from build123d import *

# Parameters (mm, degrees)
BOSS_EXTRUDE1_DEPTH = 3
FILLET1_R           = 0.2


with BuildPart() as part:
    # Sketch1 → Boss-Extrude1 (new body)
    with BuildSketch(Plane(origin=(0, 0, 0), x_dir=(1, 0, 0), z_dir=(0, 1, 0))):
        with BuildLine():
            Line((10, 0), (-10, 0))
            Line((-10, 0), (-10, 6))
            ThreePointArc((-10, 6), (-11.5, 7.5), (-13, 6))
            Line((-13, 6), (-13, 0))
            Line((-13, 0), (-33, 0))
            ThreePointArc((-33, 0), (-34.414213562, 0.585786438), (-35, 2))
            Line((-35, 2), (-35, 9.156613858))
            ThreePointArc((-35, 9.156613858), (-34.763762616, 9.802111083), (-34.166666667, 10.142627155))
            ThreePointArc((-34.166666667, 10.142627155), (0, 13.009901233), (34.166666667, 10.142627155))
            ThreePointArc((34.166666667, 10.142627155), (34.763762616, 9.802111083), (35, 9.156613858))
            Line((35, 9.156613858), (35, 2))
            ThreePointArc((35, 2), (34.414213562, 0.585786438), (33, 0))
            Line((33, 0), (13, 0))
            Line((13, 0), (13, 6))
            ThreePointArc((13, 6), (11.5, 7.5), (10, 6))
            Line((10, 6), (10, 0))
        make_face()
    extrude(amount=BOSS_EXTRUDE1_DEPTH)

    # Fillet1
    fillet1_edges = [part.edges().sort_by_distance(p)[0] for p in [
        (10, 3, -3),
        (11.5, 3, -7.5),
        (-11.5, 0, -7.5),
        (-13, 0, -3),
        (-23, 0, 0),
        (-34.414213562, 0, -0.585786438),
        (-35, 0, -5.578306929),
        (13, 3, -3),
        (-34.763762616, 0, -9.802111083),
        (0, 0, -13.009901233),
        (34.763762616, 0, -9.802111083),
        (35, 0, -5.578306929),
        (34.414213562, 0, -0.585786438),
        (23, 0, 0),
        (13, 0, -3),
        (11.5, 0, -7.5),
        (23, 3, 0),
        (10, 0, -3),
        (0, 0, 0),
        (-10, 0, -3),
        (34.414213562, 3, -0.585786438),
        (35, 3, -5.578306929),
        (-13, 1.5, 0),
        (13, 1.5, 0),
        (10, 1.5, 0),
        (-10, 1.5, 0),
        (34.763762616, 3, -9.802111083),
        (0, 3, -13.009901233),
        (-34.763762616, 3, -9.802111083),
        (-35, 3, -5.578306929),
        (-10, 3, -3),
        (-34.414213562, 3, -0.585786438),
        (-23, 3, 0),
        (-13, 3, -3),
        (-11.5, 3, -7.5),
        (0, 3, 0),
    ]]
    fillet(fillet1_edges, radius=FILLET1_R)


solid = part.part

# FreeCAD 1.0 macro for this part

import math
import FreeCAD as App
import Part
import Sketcher
from FreeCAD import Vector

doc = App.newDocument("Part")
body = doc.addObject("PartDesign::Body", "Body")

# Sketch on XZ plane
sketch1 = body.newObject("Sketcher::SketchObject", "Sketch")
sketch1.AttachmentSupport = (doc.getObject("XZ_Plane"), [""])
sketch1.MapMode = "FlatFace"
sketch1.addGeometry(Part.LineSegment(Vector(-10, 0, 0), Vector(10, 0, 0)), False)
sketch1.addGeometry(Part.LineSegment(Vector(10, 0, 0), Vector(10, -6, 0)), False)
sketch1.addGeometry(Part.ArcOfCircle(Part.Circle(Vector(11.5, -6, 0), Vector(0, 0, 1), 1.5), math.radians(180), math.radians(360)), False)
sketch1.addGeometry(Part.LineSegment(Vector(13, -6, 0), Vector(13, 0, 0)), False)
sketch1.addGeometry(Part.LineSegment(Vector(13, 0, 0), Vector(33, 0, 0)), False)
sketch1.addGeometry(Part.ArcOfCircle(Part.Circle(Vector(33, -2, 0), Vector(0, 0, 1), 2), math.radians(0), math.radians(90)), False)
sketch1.addGeometry(Part.LineSegment(Vector(35, -2, 0), Vector(35, -9.2, 0)), False)
sketch1.addGeometry(Part.ArcOfCircle(Part.Circle(Vector(34, -9.2, 0), Vector(0, 0, 1), 1), math.radians(-80), math.radians(0)), False)
sketch1.addGeometry(Part.ArcOfCircle(Part.Circle(Vector(0, 192, 0), Vector(0, 0, 1), 205), math.radians(-99.59), math.radians(-80.41)), False)
sketch1.addGeometry(Part.ArcOfCircle(Part.Circle(Vector(-34, -9.2, 0), Vector(0, 0, 1), 1), math.radians(180), math.radians(260)), False)
sketch1.addGeometry(Part.LineSegment(Vector(-35, -9.2, 0), Vector(-35, -2, 0)), False)
sketch1.addGeometry(Part.ArcOfCircle(Part.Circle(Vector(-33, -2, 0), Vector(0, 0, 1), 2), math.radians(90), math.radians(180)), False)
sketch1.addGeometry(Part.LineSegment(Vector(-33, 0, 0), Vector(-13, 0, 0)), False)
sketch1.addGeometry(Part.LineSegment(Vector(-13, 0, 0), Vector(-13, -6, 0)), False)
sketch1.addGeometry(Part.ArcOfCircle(Part.Circle(Vector(-11.5, -6, 0), Vector(0, 0, 1), 1.5), math.radians(180), math.radians(360)), False)
sketch1.addGeometry(Part.LineSegment(Vector(-10, -6, 0), Vector(-10, 0, 0)), False)
sketch1.addConstraint(Sketcher.Constraint("Coincident", 0, 2, 1, 1))
sketch1.addConstraint(Sketcher.Constraint("Tangent", 1, 2, 2, 1))
sketch1.addConstraint(Sketcher.Constraint("Tangent", 2, 2, 3, 1))
sketch1.addConstraint(Sketcher.Constraint("Coincident", 3, 2, 4, 1))
sketch1.addConstraint(Sketcher.Constraint("Tangent", 4, 2, 5, 2))
sketch1.addConstraint(Sketcher.Constraint("Tangent", 5, 1, 6, 1))
sketch1.addConstraint(Sketcher.Constraint("Tangent", 6, 2, 7, 2))
sketch1.addConstraint(Sketcher.Constraint("Tangent", 7, 1, 8, 2))
sketch1.addConstraint(Sketcher.Constraint("Tangent", 8, 1, 9, 2))
sketch1.addConstraint(Sketcher.Constraint("Tangent", 9, 1, 10, 1))
sketch1.addConstraint(Sketcher.Constraint("Tangent", 10, 2, 11, 2))
sketch1.addConstraint(Sketcher.Constraint("Tangent", 11, 1, 12, 1))
sketch1.addConstraint(Sketcher.Constraint("Coincident", 12, 2, 13, 1))
sketch1.addConstraint(Sketcher.Constraint("Tangent", 13, 2, 14, 1))
sketch1.addConstraint(Sketcher.Constraint("Tangent", 14, 2, 15, 1))
sketch1.addConstraint(Sketcher.Constraint("Coincident", 15, 2, 0, 1))
sketch1.addConstraint(Sketcher.Constraint("Horizontal", 0))
sketch1.addConstraint(Sketcher.Constraint("Vertical", 1))
sketch1.addConstraint(Sketcher.Constraint("Vertical", 3))
sketch1.addConstraint(Sketcher.Constraint("Horizontal", 4))
sketch1.addConstraint(Sketcher.Constraint("Vertical", 6))
sketch1.addConstraint(Sketcher.Constraint("Vertical", 10))
sketch1.addConstraint(Sketcher.Constraint("Horizontal", 12))
sketch1.addConstraint(Sketcher.Constraint("Vertical", 13))
sketch1.addConstraint(Sketcher.Constraint("Vertical", 15))
sketch1.addConstraint(Sketcher.Constraint("Equal", 7, 9))
sketch1.addConstraint(Sketcher.Constraint("Equal", 5, 11))
sketch1.addConstraint(Sketcher.Constraint("Equal", 2, 14))
sketch1.addConstraint(Sketcher.Constraint("Symmetric", 4, 2, 11, 1, -1, 1))
sketch1.addConstraint(Sketcher.Constraint("Symmetric", 0, 2, 15, 2, -1, 1))
sketch1.addConstraint(Sketcher.Constraint("PointOnObject", 8, 3, -2))
sketch1.addConstraint(Sketcher.Constraint("PointOnObject", 3, 2, -1))
sketch1.addConstraint(Sketcher.Constraint("Horizontal", 2, 3, 14, 3))
sketch1.addConstraint(Sketcher.Constraint("Equal", 0, 4))
sketch1.addConstraint(Sketcher.Constraint("Radius", 5, 2.0))
sketch1.addConstraint(Sketcher.Constraint("Radius", 7, 1.0))
sketch1.addConstraint(Sketcher.Constraint("Radius", 8, 205.0))
sketch1.addConstraint(Sketcher.Constraint("Radius", 2, 1.5))
sketch1.addConstraint(Sketcher.Constraint("DistanceX", 0, 1, 0, 2, 20.0))
sketch1.addConstraint(Sketcher.Constraint("DistanceY", 1, 2, 1, 1, 6.0))
sketch1.addConstraint(Sketcher.Constraint("DistanceY", -1, 1, 8, 3, 191.990099))
pad1 = body.newObject("PartDesign::Pad", "Pad")
pad1.Profile = sketch1
pad1.Length = 3
pad1.Reversed = True
doc.recompute()

fillet = body.newObject("PartDesign::Fillet", "Fillet")
fillet.Base = (pad1, ["Edge1"])
fillet.UseAllEdges = True
fillet.Radius = 0.2

doc.recompute()
